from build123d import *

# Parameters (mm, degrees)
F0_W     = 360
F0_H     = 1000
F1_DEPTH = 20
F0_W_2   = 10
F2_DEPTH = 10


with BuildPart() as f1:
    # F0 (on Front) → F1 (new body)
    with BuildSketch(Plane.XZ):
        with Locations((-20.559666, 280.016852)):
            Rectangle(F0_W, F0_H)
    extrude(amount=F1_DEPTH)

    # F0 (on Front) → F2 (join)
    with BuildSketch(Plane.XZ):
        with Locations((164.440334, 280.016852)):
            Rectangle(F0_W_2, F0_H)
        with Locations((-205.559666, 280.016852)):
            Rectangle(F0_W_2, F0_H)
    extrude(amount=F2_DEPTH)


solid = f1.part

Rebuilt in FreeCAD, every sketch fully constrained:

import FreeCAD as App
import Part
import Sketcher
Q = App.Units.Quantity

doc = App.newDocument("Part")
body = doc.addObject("PartDesign::Body", "Body")

sketch1 = doc.addObject("Sketcher::SketchObject", "Sketch")
body.addObject(sketch1)
sketch1.AttachmentSupport = (doc.XZ_Plane, [""])
sketch1.MapMode = "FlatFace"
sketch1.addGeometry([
    Part.LineSegment(App.Vector(-201, 780, 0), App.Vector(-201, -220, 0)),
    Part.LineSegment(App.Vector(-201, -220, 0), App.Vector(159, -220, 0)),
    Part.LineSegment(App.Vector(159, -220, 0), App.Vector(159, 780, 0)),
    Part.LineSegment(App.Vector(159, 780, 0), App.Vector(-201, 780, 0)),
], False)
sketch1.addConstraint([
    Sketcher.Constraint("Coincident", 0, 2, 1, 1),
    Sketcher.Constraint("Coincident", 1, 2, 2, 1),
    Sketcher.Constraint("Coincident", 2, 2, 3, 1),
    Sketcher.Constraint("Coincident", 3, 2, 0, 1),
    Sketcher.Constraint("Vertical", 0),
    Sketcher.Constraint("Horizontal", 1),
    Sketcher.Constraint("Vertical", 2),
    Sketcher.Constraint("Horizontal", 3),
    Sketcher.Constraint("DistanceX", 1, 1, 1, 2, Q("360 mm")),
    Sketcher.Constraint("DistanceY", 0, 2, 0, 1, Q("1000 mm")),
    Sketcher.Constraint("DistanceY", 0, 2, -1, 1, Q("219.983148 mm")),
    Sketcher.Constraint("DistanceX", 0, 2, -1, 1, Q("200.559666 mm")),
])
pad1 = doc.addObject("PartDesign::Pad", "Pad")
body.addObject(pad1)
pad1.Profile = sketch1
pad1.Length = 20

sketch2 = doc.addObject("Sketcher::SketchObject", "Sketch001")
body.addObject(sketch2)
sketch2.AttachmentSupport = (doc.XZ_Plane, [""])
sketch2.MapMode = "FlatFace"
sketch2.addGeometry([
    Part.LineSegment(App.Vector(159, 780, 0), App.Vector(159, -220, 0)),
    Part.LineSegment(App.Vector(159, -220, 0), App.Vector(169, -220, 0)),
    Part.LineSegment(App.Vector(169, -220, 0), App.Vector(169, 780, 0)),
    Part.LineSegment(App.Vector(169, 780, 0), App.Vector(159, 780, 0)),
    Part.LineSegment(App.Vector(-211, 780, 0), App.Vector(-211, -220, 0)),
    Part.LineSegment(App.Vector(-211, -220, 0), App.Vector(-201, -220, 0)),
    Part.LineSegment(App.Vector(-201, -220, 0), App.Vector(-201, 780, 0)),
    Part.LineSegment(App.Vector(-201, 780, 0), App.Vector(-211, 780, 0)),
], False)
sketch2.addConstraint([
    Sketcher.Constraint("Coincident", 0, 2, 1, 1),
    Sketcher.Constraint("Coincident", 1, 2, 2, 1),
    Sketcher.Constraint("Coincident", 2, 2, 3, 1),
    Sketcher.Constraint("Coincident", 3, 2, 0, 1),
    Sketcher.Constraint("Coincident", 4, 2, 5, 1),
    Sketcher.Constraint("Coincident", 5, 2, 6, 1),
    Sketcher.Constraint("Coincident", 6, 2, 7, 1),
    Sketcher.Constraint("Coincident", 7, 2, 4, 1),
    Sketcher.Constraint("Vertical", 0),
    Sketcher.Constraint("Horizontal", 1),
    Sketcher.Constraint("Vertical", 2),
    Sketcher.Constraint("Horizontal", 3),
    Sketcher.Constraint("Vertical", 4),
    Sketcher.Constraint("Horizontal", 5),
    Sketcher.Constraint("Vertical", 6),
    Sketcher.Constraint("Horizontal", 7),
    Sketcher.Constraint("Horizontal", 1, 2, 4, 2),
    Sketcher.Constraint("Horizontal", 3, 2, 6, 2),
    Sketcher.Constraint("Equal", 3, 5),
    Sketcher.Constraint("DistanceX", 1, 1, 1, 2, Q("10 mm")),
    Sketcher.Constraint("DistanceY", 0, 2, 0, 1, Q("1000 mm")),
    Sketcher.Constraint("DistanceX", 4, 2, 0, 2, Q("370 mm")),
    Sketcher.Constraint("DistanceY", 0, 2, -1, 1, Q("219.983148 mm")),
    Sketcher.Constraint("DistanceX", -1, 1, 0, 2, Q("159.440334 mm")),
])
pad2 = doc.addObject("PartDesign::Pad", "Pad001")
body.addObject(pad2)
pad2.Profile = sketch2
pad2.Length = 10

doc.recompute()
